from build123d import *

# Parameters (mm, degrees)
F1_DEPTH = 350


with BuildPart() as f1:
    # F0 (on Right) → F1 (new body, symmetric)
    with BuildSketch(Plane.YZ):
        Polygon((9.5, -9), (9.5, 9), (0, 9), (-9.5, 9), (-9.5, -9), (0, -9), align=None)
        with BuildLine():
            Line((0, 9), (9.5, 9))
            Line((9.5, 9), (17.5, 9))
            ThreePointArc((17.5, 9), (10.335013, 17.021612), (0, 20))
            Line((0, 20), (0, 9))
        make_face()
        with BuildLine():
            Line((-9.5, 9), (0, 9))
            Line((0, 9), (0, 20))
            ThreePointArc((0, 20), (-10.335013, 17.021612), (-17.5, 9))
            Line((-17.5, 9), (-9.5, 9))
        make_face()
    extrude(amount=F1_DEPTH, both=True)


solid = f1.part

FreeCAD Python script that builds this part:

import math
import FreeCAD as App
import Part
import Sketcher

V = App.Vector
Q = App.Units.Quantity

doc = App.newDocument("Part")
body = doc.addObject("PartDesign::Body", "Body")

# Sketch on YZ plane
sketch1 = body.newObject("Sketcher::SketchObject", "Sketch")
sketch1.AttachmentSupport = (doc.getObject("YZ_Plane"), [""])
sketch1.MapMode = "FlatFace"
sketch1.addGeometry([
    Part.LineSegment(V(9.5, -9, 0), V(9.5, 9, 0)),  # 0
    Part.LineSegment(V(9.5, 9, 0), V(17.5, 9, 0)),  # 1
    Part.ArcOfCircle(Part.Circle(V(-0.000001, 0.579544, 0), V(0, 0, 1), 19.420456), math.radians(25.695412), math.radians(89.999998)),  # 2
    Part.ArcOfCircle(Part.Circle(V(0.000001, 0.579544, 0), V(0, 0, 1), 19.420456), math.radians(90.000002), math.radians(154.304588)),  # 3
    Part.LineSegment(V(-17.5, 9, 0), V(-9.5, 9, 0)),  # 4
    Part.LineSegment(V(-9.5, 9, 0), V(-9.5, -9, 0)),  # 5
    Part.LineSegment(V(-9.5, -9, 0), V(9.5, -9, 0)),  # 6
], False)
sketch1.addConstraint([
    Sketcher.Constraint("Coincident", 0, 2, 1, 1),
    Sketcher.Constraint("Coincident", 1, 2, 2, 1),
    Sketcher.Constraint("Tangent", 2, 2, 3, 1),
    Sketcher.Constraint("Coincident", 3, 2, 4, 1),
    Sketcher.Constraint("Coincident", 4, 2, 5, 1),
    Sketcher.Constraint("Coincident", 5, 2, 6, 1),
    Sketcher.Constraint("Coincident", 6, 2, 0, 1),
    Sketcher.Constraint("Vertical", 0),
    Sketcher.Constraint("Horizontal", 1),
    Sketcher.Constraint("Horizontal", 4),
    Sketcher.Constraint("Vertical", 5),
    Sketcher.Constraint("Horizontal", 6),
    Sketcher.Constraint("Equal", 2, 3),
    Sketcher.Constraint("Symmetric", 0, 2, 5, 2, -1, 1),
    Sketcher.Constraint("Symmetric", 1, 2, 3, 2, -2),
    Sketcher.Constraint("PointOnObject", 2, 2, -2),
    Sketcher.Constraint("DistanceX", 1, 1, 1, 2, Q("8 mm")),
    Sketcher.Constraint("DistanceX", 6, 1, 6, 2, Q("19 mm")),
    Sketcher.Constraint("DistanceY", 0, 1, 0, 2, Q("18 mm")),
    Sketcher.Constraint("DistanceY", -1, 1, 2, 2, Q("20 mm")),
])
pad1 = body.newObject("PartDesign::Pad", "Pad")
pad1.Profile = sketch1
pad1.Length = 700
pad1.Midplane = True

doc.recompute()
